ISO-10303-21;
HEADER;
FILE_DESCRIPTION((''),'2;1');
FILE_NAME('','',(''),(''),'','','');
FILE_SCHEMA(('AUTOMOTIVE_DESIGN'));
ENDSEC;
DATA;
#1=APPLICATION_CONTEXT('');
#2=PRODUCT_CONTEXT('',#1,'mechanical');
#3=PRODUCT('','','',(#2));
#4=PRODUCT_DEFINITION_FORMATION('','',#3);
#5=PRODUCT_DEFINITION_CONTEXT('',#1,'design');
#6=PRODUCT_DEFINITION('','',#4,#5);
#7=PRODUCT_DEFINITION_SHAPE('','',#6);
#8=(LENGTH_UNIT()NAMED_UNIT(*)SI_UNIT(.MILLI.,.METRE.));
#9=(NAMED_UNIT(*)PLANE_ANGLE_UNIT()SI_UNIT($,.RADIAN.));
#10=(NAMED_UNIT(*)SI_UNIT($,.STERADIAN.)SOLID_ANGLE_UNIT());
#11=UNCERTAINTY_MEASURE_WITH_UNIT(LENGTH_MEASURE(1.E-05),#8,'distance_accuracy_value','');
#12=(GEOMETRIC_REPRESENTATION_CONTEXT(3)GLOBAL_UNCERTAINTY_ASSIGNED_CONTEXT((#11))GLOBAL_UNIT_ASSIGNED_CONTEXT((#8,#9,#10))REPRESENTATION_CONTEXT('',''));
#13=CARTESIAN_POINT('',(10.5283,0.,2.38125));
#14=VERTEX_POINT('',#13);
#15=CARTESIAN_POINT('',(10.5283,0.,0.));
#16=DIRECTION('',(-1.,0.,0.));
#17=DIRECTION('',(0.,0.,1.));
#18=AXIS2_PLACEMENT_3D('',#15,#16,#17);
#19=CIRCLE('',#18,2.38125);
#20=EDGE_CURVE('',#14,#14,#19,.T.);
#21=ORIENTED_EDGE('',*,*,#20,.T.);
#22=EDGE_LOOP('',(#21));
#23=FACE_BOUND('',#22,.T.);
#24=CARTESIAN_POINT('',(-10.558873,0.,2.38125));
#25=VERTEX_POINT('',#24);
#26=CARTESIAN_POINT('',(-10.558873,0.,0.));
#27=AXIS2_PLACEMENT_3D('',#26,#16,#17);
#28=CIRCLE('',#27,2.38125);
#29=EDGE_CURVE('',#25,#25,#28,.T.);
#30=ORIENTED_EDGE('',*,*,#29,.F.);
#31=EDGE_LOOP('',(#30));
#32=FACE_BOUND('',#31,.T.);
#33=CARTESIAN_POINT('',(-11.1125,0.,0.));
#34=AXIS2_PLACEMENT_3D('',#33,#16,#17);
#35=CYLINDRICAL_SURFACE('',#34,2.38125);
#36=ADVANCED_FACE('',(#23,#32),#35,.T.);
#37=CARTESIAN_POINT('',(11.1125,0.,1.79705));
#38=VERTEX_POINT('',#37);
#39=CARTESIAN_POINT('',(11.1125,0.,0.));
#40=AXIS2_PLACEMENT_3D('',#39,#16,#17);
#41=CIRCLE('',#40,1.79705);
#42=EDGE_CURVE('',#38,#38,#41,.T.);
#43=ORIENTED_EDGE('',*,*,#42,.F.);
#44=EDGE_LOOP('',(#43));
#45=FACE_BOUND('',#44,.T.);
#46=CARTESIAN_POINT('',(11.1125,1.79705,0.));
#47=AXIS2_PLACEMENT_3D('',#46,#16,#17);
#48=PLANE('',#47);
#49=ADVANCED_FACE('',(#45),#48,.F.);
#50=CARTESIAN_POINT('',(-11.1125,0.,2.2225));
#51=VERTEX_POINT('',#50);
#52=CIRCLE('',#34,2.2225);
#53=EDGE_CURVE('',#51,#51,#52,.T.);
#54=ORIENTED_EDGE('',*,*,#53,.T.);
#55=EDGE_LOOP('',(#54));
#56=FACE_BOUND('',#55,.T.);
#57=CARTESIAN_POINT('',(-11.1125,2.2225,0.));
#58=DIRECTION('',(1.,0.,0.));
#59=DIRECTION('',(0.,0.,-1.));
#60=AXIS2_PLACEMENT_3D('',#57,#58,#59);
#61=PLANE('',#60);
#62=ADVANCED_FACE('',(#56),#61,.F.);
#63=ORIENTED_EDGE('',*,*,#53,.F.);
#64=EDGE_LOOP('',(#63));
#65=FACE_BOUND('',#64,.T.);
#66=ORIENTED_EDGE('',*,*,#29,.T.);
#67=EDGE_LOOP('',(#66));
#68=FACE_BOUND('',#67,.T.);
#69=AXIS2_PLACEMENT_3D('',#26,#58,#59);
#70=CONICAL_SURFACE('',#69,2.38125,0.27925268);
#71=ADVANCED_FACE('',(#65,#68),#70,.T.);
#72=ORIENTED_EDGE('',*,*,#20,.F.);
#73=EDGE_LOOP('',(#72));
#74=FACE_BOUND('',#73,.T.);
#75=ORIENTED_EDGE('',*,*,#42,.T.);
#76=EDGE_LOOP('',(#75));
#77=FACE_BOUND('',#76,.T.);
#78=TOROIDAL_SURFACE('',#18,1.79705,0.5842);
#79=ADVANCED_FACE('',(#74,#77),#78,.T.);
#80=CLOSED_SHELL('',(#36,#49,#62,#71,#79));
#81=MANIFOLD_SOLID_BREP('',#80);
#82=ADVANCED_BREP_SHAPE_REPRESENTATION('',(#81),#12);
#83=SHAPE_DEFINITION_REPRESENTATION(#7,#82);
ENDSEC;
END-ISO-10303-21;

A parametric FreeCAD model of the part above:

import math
import FreeCAD as App
import Part
import Sketcher

V = App.Vector
Q = App.Units.Quantity

doc = App.newDocument("Part")
body = doc.addObject("PartDesign::Body", "Body")

# Sketch on XY plane
sketch1 = body.newObject("Sketcher::SketchObject", "Sketch")
sketch1.AttachmentSupport = (doc.getObject("XY_Plane"), [""])
sketch1.MapMode = "FlatFace"
sketch1.addGeometry(Part.LineSegment(V(11.1125, 0, 0), V(11.1125, 1.79705, 0)), False)
sketch1.addGeometry(Part.ArcOfCircle(Part.Circle(V(10.5283, 1.79705, 0), V(0, 0, 1), 0.5842), math.radians(0), math.radians(90)), False)
sketch1.addGeometry(Part.LineSegment(V(10.5283, 2.38125, 0), V(-10.558873, 2.38125, 0)), False)
sketch1.addGeometry(Part.LineSegment(V(-10.558873, 2.38125, 0), V(-11.1125, 2.2225, 0)), False)
sketch1.addGeometry(Part.LineSegment(V(-11.1125, 2.2225, 0), V(-11.1125, 0, 0)), False)
sketch1.addGeometry(Part.LineSegment(V(-11.1125, 0, 0), V(11.1125, 0, 0)), False)
sketch1.addConstraint(Sketcher.Constraint("Tangent", 0, 2, 1, 1))
sketch1.addConstraint(Sketcher.Constraint("Tangent", 1, 2, 2, 1))
sketch1.addConstraint(Sketcher.Constraint("Coincident", 2, 2, 3, 1))
sketch1.addConstraint(Sketcher.Constraint("Coincident", 3, 2, 4, 1))
sketch1.addConstraint(Sketcher.Constraint("Coincident", 4, 2, 5, 1))
sketch1.addConstraint(Sketcher.Constraint("Coincident", 5, 2, 0, 1))
sketch1.addConstraint(Sketcher.Constraint("Vertical", 0))
sketch1.addConstraint(Sketcher.Constraint("Horizontal", 2))
sketch1.addConstraint(Sketcher.Constraint("Vertical", 4))
sketch1.addConstraint(Sketcher.Constraint("Horizontal", 5))
sketch1.addConstraint(Sketcher.Constraint("Symmetric", 4, 2, 5, 2, -1, 1))
sketch1.addConstraint(Sketcher.Constraint("Angle", 3, Q("-164 deg")))
sketch1.addConstraint(Sketcher.Constraint("Radius", 1, Q("0.023 in")))
sketch1.addConstraint(Sketcher.Constraint("DistanceX", 5, 1, 5, 2, Q("0.875 in")))
sketch1.addConstraint(Sketcher.Constraint("DistanceY", 4, 2, 4, 1, Q("0.0875 in")))
sketch1.addConstraint(Sketcher.Constraint("DistanceY", -1, 1, 1, 2, Q("0.09375 in")))
revolution = body.newObject("PartDesign::Revolution", "Revolution")
revolution.Profile = sketch1
revolution.ReferenceAxis = (sketch1, ["H_Axis"])
revolution.Angle = 360

doc.recompute()
